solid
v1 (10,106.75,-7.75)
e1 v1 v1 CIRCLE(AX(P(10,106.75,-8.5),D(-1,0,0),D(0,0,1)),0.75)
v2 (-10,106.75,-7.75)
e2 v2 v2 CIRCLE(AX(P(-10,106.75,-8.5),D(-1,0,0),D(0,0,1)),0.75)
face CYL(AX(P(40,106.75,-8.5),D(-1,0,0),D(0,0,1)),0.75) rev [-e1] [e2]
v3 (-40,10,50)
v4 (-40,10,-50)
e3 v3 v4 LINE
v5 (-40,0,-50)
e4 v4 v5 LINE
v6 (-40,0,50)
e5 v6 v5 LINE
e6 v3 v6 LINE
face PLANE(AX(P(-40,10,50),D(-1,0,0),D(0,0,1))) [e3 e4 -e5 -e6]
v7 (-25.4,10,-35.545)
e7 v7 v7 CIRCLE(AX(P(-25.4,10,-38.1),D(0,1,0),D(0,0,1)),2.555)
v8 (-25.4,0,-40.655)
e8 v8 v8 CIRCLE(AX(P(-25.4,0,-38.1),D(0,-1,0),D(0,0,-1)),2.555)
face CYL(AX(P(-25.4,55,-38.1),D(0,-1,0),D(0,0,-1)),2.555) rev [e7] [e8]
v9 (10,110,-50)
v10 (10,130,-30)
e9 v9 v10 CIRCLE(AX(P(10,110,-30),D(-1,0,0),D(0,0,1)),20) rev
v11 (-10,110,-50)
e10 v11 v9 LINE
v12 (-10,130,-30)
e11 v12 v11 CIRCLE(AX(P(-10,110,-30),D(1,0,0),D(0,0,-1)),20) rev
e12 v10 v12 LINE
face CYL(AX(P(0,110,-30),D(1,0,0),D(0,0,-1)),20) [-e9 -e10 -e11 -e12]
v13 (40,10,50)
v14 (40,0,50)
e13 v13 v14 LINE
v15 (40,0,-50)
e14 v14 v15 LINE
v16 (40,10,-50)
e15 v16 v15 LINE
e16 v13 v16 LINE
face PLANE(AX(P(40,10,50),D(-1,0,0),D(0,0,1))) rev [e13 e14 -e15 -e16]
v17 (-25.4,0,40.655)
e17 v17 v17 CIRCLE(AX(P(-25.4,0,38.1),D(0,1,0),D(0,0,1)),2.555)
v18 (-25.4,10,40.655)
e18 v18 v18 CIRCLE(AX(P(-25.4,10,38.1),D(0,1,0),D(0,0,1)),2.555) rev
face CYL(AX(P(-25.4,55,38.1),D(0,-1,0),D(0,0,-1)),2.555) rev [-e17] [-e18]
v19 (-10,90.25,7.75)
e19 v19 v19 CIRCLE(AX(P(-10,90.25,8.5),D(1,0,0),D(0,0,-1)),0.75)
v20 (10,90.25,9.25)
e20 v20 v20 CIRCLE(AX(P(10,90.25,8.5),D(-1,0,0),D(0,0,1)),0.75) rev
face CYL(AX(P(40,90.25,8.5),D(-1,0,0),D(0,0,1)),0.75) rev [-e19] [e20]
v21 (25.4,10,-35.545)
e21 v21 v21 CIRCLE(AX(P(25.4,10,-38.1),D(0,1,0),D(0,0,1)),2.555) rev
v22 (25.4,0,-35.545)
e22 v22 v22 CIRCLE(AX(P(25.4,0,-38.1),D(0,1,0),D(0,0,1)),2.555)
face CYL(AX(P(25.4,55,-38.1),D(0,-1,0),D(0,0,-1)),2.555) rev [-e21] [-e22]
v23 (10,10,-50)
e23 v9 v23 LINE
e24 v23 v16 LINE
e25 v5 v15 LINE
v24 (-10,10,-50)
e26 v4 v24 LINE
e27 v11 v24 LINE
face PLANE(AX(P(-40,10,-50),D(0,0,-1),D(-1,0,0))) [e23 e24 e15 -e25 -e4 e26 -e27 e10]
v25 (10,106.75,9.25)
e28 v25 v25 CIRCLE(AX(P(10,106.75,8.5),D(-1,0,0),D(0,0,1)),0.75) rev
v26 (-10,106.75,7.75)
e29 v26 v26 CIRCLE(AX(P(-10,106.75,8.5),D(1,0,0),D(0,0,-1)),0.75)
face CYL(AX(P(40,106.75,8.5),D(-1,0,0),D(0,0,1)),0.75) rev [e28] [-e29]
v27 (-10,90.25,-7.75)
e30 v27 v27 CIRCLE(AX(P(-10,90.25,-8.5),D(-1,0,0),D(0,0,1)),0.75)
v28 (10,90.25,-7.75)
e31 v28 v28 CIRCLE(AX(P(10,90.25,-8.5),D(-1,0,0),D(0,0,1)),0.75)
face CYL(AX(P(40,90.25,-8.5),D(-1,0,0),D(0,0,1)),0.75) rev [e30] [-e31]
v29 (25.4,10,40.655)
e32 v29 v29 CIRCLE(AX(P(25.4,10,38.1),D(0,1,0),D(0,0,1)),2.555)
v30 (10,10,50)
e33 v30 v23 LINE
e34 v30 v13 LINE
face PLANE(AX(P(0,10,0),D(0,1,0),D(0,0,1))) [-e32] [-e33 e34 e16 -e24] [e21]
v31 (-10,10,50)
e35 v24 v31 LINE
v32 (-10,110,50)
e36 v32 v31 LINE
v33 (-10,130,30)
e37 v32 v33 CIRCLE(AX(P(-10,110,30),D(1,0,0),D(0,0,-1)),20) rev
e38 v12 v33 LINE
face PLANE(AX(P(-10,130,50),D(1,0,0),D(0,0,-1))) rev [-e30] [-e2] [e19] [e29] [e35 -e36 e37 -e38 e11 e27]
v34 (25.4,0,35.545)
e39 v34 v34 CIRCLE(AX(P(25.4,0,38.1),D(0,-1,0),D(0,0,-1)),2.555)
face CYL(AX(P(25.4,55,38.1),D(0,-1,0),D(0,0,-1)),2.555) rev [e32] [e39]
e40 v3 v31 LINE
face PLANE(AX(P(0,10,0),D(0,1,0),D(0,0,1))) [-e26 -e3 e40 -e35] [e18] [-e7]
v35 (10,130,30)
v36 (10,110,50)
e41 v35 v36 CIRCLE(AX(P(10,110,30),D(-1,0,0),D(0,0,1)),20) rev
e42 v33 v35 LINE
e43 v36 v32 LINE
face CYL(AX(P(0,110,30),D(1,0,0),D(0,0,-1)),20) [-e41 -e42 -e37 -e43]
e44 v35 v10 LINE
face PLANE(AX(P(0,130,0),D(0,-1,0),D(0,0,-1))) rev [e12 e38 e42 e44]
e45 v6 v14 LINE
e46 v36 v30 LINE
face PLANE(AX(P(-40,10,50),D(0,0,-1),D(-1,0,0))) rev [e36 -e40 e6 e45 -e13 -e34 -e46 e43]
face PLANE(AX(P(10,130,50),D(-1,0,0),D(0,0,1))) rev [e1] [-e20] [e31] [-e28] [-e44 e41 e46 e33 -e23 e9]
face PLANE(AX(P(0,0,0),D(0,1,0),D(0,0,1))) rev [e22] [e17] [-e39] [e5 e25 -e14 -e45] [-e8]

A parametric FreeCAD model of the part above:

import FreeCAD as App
import Part
import Sketcher


def edges_at(feature, points):
    """Names of the edges that pass closest to the given points."""
    edges = feature.Shape.Edges
    near = lambda p: min(range(len(edges)), key=lambda i: edges[i].distToShape(Part.Vertex(*p))[0])
    return sorted({f"Edge{near(p) + 1}" for p in points})


def add_polygon(sketch, points):
    """Adds a closed chain of lines whose ends are joined by coincident constraints."""
    first, n = sketch.GeometryCount, len(points)
    for a, b in zip(points, points[1:] + points[:1]):
        sketch.addGeometry(Part.LineSegment(App.Vector(*a, 0), App.Vector(*b, 0)), False)
    for i in range(n):
        sketch.addConstraint(Sketcher.Constraint("Coincident", first + i, 2, first + (i + 1) % n, 1))

doc = App.newDocument("Part")
body = doc.addObject("PartDesign::Body", "Body")

# Sketch on XZ plane
sketch1 = body.newObject("Sketcher::SketchObject", "Sketch")
sketch1.AttachmentSupport = (doc.getObject("XZ_Plane"), [""])
sketch1.MapMode = "FlatFace"
add_polygon(sketch1, [(-40, -50), (-40, 50), (40, 50), (40, -50)])  # lines 0-3
sketch1.addConstraint(Sketcher.Constraint("Vertical", 0))
sketch1.addConstraint(Sketcher.Constraint("Horizontal", 1))
sketch1.addConstraint(Sketcher.Constraint("Vertical", 2))
sketch1.addConstraint(Sketcher.Constraint("Horizontal", 3))
sketch1.addConstraint(Sketcher.Constraint("Symmetric", 0, 2, 2, 2, -1, 1))
sketch1.addConstraint(Sketcher.Constraint("DistanceX", 1, 1, 1, 2, 80.0))
sketch1.addConstraint(Sketcher.Constraint("DistanceY", 0, 1, 0, 2, 100.0))
pad1 = body.newObject("PartDesign::Pad", "Pad")
pad1.Profile = sketch1
pad1.Length = 10
pad1.Reversed = True

# Sketch on XZ plane
sketch2 = body.newObject("Sketcher::SketchObject", "Sketch001")
sketch2.AttachmentSupport = (doc.getObject("XZ_Plane"), [""])
sketch2.MapMode = "FlatFace"
sketch2.AttachmentOffset = App.Placement(App.Vector(0, 0, -10), App.Rotation())
add_polygon(sketch2, [(-10, -50), (-10, 50), (10, 50), (10, -50)])  # lines 0-3
sketch2.addConstraint(Sketcher.Constraint("Vertical", 0))
sketch2.addConstraint(Sketcher.Constraint("Horizontal", 1))
sketch2.addConstraint(Sketcher.Constraint("Vertical", 2))
sketch2.addConstraint(Sketcher.Constraint("Horizontal", 3))
sketch2.addConstraint(Sketcher.Constraint("Symmetric", 0, 2, 2, 2, -1, 1))
sketch2.addConstraint(Sketcher.Constraint("DistanceX", 1, 1, 1, 2, 20.0))
sketch2.addConstraint(Sketcher.Constraint("DistanceY", 0, 1, 0, 2, 100.0))
pad2 = body.newObject("PartDesign::Pad", "Pad001")
pad2.Profile = sketch2
pad2.Length = 120
pad2.Reversed = True

# Sketch on XZ plane
sketch3 = body.newObject("Sketcher::SketchObject", "Sketch002")
sketch3.AttachmentSupport = (doc.getObject("XZ_Plane"), [""])
sketch3.MapMode = "FlatFace"
sketch3.addGeometry(Part.Circle(App.Vector(-25.4, -38.1, 0), App.Vector(0, 0, 1), 2.6), False)
sketch3.addGeometry(Part.Circle(App.Vector(25.4, -38.1, 0), App.Vector(0, 0, 1), 2.6), False)
sketch3.addGeometry(Part.Circle(App.Vector(-25.4, 38.1, 0), App.Vector(0, 0, 1), 2.6), False)
sketch3.addGeometry(Part.Circle(App.Vector(25.4, 38.1, 0), App.Vector(0, 0, 1), 2.6), False)
sketch3.addConstraint(Sketcher.Constraint("Equal", 0, 1))
sketch3.addConstraint(Sketcher.Constraint("Equal", 1, 2))
sketch3.addConstraint(Sketcher.Constraint("Equal", 2, 3))
sketch3.addConstraint(Sketcher.Constraint("Symmetric", 1, 3, 2, 3, -1, 1))
sketch3.addConstraint(Sketcher.Constraint("Symmetric", 0, 3, 3, 3, -1, 1))
sketch3.addConstraint(Sketcher.Constraint("Symmetric", 0, 3, 1, 3, -2))
sketch3.addConstraint(Sketcher.Constraint("Diameter", 0, 5.11))
sketch3.addConstraint(Sketcher.Constraint("DistanceX", 0, 3, -1, 1, 25.4))
sketch3.addConstraint(Sketcher.Constraint("DistanceY", 0, 3, -1, 1, 38.1))
pocket1 = body.newObject("PartDesign::Pocket", "Pocket")
pocket1.Profile = sketch3
pocket1.Length = 55
doc.recompute()

fillet = body.newObject("PartDesign::Fillet", "Fillet")
fillet.Base = (pocket1, edges_at(pocket1, [(0, 130, -50), (0, 130, 50)]))
fillet.Radius = 20

# Sketch on YZ plane
sketch4 = body.newObject("Sketcher::SketchObject", "Sketch003")
sketch4.AttachmentSupport = (doc.getObject("YZ_Plane"), [""])
sketch4.MapMode = "FlatFace"
sketch4.AttachmentOffset = App.Placement(App.Vector(0, 0, -10), App.Rotation())
sketch4.addGeometry(Part.Circle(App.Vector(106.8, -8.5, 0), App.Vector(0, 0, 1), 0.8), False)
sketch4.addGeometry(Part.Circle(App.Vector(90.2, -8.5, 0), App.Vector(0, 0, 1), 0.8), False)
sketch4.addGeometry(Part.Circle(App.Vector(90.2, 8.5, 0), App.Vector(0, 0, 1), 0.8), False)
sketch4.addGeometry(Part.Circle(App.Vector(106.8, 8.5, 0), App.Vector(0, 0, 1), 0.8), False)
sketch4.addConstraint(Sketcher.Constraint("Equal", 0, 1))
sketch4.addConstraint(Sketcher.Constraint("Equal", 1, 2))
sketch4.addConstraint(Sketcher.Constraint("Equal", 2, 3))
sketch4.addConstraint(Sketcher.Constraint("Symmetric", 1, 3, 2, 3, -1))
sketch4.addConstraint(Sketcher.Constraint("Symmetric", 0, 3, 3, 3, -1))
sketch4.addConstraint(Sketcher.Constraint("Horizontal", 0, 3, 1, 3))
sketch4.addConstraint(Sketcher.Constraint("Diameter", 0, 1.5))
sketch4.addConstraint(Sketcher.Constraint("DistanceY", 1, 3, 2, 3, 17.0))
sketch4.addConstraint(Sketcher.Constraint("DistanceX", 1, 3, 0, 3, 16.5))
sketch4.addConstraint(Sketcher.Constraint("DistanceX", -1, 1, 0, 3, 106.75))
pocket2 = body.newObject("PartDesign::Pocket", "Pocket001")
pocket2.Profile = sketch4
pocket2.Type = "ThroughAll"
pocket2.Reversed = True

doc.recompute()
